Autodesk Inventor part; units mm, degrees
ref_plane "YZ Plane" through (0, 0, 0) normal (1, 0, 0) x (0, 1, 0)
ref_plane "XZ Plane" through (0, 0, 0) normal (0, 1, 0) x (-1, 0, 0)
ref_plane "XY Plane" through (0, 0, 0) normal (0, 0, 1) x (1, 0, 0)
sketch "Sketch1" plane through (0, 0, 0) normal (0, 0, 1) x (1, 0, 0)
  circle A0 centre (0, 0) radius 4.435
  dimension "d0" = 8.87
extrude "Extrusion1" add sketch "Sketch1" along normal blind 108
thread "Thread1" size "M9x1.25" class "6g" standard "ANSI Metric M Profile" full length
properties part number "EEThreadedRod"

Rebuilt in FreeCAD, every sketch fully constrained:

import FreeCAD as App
import Part
import Sketcher

V = App.Vector
Q = App.Units.Quantity

doc = App.newDocument("Part")
body = doc.addObject("PartDesign::Body", "Body")

# Sketch on XY plane
sketch1 = body.newObject("Sketcher::SketchObject", "Sketch")
sketch1.AttachmentSupport = (doc.getObject("XY_Plane"), [""])
sketch1.MapMode = "FlatFace"
sketch1.addGeometry(Part.Circle(V(0, 0, 0), V(0, 0, 1), 4.4), False)
sketch1.addConstraint([
    Sketcher.Constraint("Coincident", 0, 3, -1, 1),
    Sketcher.Constraint("Diameter", 0, Q("8.87 mm")),
])
pad1 = body.newObject("PartDesign::Pad", "Pad")
pad1.Profile = sketch1
pad1.Length = 108

doc.recompute()
